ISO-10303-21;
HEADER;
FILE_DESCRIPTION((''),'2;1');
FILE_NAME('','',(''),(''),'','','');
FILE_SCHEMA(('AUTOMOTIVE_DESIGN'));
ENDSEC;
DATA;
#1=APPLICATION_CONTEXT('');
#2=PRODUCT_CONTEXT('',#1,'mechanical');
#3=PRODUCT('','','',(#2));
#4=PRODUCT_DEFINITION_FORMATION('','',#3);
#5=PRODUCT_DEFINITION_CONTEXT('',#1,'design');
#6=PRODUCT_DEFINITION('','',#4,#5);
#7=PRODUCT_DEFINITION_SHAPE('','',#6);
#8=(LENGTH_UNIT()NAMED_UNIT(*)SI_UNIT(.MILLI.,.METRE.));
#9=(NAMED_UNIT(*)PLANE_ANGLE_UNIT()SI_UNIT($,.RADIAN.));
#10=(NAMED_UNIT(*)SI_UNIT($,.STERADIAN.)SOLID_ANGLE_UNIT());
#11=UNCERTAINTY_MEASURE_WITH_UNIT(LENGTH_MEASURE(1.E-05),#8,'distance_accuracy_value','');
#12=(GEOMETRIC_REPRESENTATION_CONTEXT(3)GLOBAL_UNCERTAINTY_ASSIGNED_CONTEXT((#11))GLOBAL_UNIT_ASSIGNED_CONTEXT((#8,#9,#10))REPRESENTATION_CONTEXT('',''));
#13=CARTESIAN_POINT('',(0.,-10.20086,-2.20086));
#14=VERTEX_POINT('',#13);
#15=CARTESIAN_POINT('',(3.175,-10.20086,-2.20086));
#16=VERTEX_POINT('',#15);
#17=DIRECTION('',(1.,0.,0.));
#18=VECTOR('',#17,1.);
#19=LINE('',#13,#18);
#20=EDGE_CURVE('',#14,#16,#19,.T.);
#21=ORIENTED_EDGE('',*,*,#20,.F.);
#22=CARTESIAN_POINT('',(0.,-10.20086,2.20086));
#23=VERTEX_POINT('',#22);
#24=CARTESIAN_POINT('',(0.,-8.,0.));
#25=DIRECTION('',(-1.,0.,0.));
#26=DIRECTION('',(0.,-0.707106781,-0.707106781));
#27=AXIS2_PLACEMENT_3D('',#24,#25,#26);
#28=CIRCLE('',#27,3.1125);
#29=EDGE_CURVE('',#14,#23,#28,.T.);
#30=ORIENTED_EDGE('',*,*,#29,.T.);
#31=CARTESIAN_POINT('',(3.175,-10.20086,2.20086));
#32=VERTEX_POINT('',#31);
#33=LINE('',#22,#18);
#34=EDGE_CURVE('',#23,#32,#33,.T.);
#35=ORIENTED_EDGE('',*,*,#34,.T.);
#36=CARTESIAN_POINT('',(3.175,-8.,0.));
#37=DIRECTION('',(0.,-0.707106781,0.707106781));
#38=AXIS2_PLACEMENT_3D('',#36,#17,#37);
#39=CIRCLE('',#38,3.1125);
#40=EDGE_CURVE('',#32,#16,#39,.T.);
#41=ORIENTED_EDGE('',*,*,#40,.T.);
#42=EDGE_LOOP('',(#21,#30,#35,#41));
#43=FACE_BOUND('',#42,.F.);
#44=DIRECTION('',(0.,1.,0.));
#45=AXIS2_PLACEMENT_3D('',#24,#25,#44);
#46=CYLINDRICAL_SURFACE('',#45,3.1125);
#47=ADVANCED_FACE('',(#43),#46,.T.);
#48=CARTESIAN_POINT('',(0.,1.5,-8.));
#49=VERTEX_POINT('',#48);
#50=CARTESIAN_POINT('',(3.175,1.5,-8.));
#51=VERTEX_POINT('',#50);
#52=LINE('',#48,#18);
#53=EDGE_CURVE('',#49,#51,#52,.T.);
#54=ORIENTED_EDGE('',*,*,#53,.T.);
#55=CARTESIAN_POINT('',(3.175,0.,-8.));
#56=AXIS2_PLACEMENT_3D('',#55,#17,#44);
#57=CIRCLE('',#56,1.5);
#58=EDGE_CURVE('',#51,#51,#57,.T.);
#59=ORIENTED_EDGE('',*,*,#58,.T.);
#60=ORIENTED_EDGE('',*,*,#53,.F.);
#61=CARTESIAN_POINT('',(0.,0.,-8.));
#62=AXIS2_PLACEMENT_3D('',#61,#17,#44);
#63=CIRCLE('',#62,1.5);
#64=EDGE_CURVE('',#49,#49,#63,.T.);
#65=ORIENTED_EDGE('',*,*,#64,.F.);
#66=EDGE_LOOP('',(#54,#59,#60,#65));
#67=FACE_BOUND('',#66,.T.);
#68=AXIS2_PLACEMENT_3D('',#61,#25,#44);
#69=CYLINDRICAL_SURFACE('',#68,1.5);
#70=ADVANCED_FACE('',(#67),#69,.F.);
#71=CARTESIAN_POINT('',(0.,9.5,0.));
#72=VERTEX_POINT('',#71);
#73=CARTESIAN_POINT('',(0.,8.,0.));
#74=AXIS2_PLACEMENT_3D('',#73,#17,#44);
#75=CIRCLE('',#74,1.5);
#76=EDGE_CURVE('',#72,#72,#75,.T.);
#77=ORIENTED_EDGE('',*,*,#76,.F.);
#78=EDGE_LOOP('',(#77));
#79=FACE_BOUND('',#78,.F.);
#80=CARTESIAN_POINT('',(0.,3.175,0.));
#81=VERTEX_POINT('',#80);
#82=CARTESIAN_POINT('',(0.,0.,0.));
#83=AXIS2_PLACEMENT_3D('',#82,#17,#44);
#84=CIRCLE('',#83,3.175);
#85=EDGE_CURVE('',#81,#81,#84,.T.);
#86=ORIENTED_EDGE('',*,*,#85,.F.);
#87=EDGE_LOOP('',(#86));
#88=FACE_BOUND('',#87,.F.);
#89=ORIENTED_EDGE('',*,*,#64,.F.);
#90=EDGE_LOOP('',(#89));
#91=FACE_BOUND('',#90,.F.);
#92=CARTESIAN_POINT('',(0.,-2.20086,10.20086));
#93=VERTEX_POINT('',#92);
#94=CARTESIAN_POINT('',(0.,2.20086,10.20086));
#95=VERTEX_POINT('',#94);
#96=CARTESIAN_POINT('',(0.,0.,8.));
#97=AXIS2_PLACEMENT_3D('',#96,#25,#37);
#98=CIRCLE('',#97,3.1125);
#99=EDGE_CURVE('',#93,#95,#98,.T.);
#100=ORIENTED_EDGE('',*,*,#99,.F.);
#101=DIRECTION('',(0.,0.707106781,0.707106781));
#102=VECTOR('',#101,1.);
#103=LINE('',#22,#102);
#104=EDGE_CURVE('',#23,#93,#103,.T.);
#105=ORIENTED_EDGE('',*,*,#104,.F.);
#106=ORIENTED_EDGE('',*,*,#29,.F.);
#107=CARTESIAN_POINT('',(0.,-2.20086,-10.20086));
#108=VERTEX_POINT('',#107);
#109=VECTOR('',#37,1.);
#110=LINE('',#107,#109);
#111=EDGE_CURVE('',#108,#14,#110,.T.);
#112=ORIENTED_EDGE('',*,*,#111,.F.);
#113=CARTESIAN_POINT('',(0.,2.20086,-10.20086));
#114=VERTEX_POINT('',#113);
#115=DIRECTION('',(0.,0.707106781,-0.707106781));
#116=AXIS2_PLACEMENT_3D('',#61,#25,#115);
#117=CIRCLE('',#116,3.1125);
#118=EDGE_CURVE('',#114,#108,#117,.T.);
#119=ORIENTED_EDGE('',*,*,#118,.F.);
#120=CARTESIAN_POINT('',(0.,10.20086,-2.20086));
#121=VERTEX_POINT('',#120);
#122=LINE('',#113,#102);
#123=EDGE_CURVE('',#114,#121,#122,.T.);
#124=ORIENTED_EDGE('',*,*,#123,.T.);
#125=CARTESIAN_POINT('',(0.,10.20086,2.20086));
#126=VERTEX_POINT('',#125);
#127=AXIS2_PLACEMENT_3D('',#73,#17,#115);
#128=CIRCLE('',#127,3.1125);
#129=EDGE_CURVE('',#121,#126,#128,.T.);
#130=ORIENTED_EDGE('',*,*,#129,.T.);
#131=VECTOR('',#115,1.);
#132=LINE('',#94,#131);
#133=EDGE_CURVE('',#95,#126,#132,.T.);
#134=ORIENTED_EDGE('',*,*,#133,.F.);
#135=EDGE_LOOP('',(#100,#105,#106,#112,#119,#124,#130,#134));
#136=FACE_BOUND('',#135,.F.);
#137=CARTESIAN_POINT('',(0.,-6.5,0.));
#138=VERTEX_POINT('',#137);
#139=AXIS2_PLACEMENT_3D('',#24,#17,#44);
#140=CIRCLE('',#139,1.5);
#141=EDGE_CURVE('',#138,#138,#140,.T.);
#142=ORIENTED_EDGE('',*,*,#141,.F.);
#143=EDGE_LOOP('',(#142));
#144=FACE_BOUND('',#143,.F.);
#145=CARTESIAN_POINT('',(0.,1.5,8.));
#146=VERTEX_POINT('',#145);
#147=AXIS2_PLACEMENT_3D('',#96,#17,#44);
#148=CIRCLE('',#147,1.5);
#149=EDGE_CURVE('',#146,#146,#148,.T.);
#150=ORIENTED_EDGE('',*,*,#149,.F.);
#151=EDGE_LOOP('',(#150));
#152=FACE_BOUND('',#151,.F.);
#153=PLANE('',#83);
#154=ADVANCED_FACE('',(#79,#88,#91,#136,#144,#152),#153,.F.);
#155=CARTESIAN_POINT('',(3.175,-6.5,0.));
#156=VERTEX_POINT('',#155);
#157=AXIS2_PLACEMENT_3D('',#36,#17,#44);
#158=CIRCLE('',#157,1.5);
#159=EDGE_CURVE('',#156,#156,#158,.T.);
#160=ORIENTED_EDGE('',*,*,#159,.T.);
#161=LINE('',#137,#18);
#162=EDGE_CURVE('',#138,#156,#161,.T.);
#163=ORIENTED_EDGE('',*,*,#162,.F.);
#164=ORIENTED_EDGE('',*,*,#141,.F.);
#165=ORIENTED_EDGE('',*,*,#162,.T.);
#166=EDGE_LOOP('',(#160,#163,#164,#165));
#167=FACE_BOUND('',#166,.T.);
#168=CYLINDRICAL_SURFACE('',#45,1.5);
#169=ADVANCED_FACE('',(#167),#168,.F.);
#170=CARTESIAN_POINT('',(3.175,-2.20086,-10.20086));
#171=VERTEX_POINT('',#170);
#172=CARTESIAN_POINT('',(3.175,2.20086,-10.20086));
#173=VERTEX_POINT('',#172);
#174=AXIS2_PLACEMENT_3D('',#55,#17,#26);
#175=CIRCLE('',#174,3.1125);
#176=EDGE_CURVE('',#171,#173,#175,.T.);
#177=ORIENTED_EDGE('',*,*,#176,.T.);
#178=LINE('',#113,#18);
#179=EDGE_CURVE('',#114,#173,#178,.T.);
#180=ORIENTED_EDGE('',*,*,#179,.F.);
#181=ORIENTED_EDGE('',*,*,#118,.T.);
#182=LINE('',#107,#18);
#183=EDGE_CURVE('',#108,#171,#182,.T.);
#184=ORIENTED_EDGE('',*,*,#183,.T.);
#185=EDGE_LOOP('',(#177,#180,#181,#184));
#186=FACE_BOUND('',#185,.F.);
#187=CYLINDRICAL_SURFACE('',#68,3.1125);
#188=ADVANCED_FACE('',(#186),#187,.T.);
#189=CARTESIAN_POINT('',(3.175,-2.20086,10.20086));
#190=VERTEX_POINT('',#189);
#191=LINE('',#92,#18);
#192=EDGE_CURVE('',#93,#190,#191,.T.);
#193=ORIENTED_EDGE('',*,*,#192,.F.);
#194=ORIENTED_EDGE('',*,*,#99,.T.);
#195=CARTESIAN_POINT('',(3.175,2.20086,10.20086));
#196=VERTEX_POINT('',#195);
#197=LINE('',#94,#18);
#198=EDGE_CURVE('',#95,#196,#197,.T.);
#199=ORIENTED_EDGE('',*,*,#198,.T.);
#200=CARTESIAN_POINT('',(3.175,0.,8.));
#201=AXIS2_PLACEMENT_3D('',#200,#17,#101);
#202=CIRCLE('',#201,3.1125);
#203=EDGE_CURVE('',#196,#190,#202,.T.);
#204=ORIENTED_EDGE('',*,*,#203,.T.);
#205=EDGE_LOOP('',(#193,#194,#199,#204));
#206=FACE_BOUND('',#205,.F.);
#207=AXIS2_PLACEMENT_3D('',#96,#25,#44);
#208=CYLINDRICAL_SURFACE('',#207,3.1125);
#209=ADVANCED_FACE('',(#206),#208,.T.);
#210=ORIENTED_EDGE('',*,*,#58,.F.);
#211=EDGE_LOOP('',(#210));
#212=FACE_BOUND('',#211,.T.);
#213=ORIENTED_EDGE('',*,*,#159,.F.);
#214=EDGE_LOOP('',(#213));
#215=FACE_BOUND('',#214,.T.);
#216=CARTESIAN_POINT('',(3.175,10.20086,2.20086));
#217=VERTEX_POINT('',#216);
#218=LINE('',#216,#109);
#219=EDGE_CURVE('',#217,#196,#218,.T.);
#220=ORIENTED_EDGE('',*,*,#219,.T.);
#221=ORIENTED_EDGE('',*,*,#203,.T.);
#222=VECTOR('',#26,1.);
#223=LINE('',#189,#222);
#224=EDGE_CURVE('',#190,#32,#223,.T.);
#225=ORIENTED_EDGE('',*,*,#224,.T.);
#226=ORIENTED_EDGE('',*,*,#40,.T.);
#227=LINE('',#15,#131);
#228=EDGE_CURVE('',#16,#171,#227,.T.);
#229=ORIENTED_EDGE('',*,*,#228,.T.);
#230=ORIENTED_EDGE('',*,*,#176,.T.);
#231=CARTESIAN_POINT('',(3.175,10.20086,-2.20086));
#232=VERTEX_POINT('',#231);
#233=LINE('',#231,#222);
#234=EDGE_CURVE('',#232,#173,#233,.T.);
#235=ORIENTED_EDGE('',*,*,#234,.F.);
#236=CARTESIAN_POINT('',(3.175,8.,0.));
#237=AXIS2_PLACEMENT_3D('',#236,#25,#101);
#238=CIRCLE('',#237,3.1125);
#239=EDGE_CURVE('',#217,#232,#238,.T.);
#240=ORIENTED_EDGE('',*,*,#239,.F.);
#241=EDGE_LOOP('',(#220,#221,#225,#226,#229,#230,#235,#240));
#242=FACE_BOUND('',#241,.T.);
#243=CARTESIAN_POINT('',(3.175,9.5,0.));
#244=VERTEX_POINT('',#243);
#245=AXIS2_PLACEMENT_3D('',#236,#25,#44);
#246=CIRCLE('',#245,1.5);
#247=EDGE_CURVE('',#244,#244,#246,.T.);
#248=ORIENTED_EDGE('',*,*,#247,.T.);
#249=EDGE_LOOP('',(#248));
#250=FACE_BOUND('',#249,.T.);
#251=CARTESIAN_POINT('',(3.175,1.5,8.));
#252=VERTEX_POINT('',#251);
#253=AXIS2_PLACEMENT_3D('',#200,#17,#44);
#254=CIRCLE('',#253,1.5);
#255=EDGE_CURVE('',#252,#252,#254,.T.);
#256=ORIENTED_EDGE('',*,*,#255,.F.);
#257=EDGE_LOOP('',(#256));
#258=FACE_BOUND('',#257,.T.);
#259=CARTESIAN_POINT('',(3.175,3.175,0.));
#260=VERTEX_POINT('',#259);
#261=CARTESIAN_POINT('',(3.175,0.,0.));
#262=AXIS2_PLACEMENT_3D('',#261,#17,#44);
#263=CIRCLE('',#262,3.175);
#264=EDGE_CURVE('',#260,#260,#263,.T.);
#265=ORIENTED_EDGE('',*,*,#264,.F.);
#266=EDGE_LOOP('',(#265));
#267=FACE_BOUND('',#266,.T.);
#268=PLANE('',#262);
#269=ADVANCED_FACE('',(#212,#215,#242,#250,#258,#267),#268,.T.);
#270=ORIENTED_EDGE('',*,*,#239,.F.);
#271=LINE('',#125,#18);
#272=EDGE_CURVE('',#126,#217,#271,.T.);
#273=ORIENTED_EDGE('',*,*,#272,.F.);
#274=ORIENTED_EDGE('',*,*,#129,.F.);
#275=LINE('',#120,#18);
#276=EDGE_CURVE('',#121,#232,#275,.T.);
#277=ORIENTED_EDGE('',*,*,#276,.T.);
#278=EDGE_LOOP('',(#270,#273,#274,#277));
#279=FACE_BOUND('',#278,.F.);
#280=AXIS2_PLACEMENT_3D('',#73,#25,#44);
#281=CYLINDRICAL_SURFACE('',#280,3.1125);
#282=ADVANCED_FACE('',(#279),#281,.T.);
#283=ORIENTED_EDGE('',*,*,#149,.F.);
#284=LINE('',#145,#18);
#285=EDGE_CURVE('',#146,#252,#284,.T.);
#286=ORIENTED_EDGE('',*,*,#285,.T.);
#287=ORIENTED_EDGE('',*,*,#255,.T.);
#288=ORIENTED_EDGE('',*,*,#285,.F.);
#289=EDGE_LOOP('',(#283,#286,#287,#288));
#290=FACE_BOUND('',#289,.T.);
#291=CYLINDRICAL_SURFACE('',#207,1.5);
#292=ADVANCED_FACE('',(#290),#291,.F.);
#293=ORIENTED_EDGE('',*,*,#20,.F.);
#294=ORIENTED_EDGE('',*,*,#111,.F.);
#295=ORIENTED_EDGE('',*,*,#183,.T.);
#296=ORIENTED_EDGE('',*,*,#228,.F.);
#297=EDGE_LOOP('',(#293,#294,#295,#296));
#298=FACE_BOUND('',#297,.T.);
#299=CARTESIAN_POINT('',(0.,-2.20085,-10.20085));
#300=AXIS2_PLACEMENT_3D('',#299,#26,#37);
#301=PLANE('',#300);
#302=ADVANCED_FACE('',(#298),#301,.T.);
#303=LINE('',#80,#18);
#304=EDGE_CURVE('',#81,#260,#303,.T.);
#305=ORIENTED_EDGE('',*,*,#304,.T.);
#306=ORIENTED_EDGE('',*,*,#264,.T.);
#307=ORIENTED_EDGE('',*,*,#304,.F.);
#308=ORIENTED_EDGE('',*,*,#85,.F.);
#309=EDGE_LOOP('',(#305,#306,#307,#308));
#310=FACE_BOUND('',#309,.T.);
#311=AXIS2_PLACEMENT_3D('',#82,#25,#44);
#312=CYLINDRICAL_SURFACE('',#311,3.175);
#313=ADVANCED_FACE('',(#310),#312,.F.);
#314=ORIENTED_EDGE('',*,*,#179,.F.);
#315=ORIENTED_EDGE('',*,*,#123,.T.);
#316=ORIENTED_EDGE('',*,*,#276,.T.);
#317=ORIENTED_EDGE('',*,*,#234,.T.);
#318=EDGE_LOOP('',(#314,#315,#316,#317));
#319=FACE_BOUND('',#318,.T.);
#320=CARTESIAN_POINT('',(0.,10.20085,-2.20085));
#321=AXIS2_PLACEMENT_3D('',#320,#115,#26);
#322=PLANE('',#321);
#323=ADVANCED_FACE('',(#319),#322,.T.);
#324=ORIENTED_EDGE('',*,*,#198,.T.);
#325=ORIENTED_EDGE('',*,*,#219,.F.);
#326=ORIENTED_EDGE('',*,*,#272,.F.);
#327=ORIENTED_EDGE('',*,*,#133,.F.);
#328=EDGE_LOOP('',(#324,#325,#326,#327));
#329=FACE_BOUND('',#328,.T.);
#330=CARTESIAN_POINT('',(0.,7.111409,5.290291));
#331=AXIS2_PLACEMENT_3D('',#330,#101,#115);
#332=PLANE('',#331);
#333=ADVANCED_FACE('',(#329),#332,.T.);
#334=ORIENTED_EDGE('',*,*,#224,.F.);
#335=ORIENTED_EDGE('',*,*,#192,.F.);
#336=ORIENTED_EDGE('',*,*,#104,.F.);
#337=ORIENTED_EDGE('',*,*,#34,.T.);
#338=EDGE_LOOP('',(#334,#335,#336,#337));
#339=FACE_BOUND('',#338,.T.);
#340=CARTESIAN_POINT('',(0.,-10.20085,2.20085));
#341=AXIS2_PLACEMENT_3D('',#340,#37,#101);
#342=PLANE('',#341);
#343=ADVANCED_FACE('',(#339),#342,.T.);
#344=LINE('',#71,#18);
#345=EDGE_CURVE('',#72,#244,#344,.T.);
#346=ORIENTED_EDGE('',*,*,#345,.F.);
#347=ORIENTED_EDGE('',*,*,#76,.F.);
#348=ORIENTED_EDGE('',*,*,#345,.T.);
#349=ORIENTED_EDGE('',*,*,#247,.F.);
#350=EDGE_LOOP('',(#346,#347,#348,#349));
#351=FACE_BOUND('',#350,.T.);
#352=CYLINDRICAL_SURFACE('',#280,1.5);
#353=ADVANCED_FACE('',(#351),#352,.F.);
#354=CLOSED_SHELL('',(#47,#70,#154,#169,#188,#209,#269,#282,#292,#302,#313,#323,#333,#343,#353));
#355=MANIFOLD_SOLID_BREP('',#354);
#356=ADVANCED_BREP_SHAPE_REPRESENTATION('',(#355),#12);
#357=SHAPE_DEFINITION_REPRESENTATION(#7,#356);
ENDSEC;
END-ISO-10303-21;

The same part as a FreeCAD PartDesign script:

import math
import FreeCAD as App
import Part
import Sketcher
from FreeCAD import Vector
Q = App.Units.Quantity

doc = App.newDocument("Part")
body = doc.addObject("PartDesign::Body", "Body")

# Sketch on YZ plane
sketch1 = body.newObject("Sketcher::SketchObject", "Sketch")
sketch1.AttachmentSupport = (doc.getObject("YZ_Plane"), [""])
sketch1.MapMode = "FlatFace"
sketch1.addGeometry(Part.ArcOfCircle(Part.Circle(Vector(8, 0, 0), Vector(0, 0, 1), 3.1125), math.radians(-45), math.radians(45)), False)
sketch1.addGeometry(Part.LineSegment(Vector(10.20086, 2.20086, 0), Vector(2.20086, 10.20086, 0)), False)
sketch1.addGeometry(Part.ArcOfCircle(Part.Circle(Vector(0, 8, 0), Vector(0, 0, 1), 3.1125), math.radians(45), math.radians(135)), False)
sketch1.addGeometry(Part.LineSegment(Vector(-2.20086, 10.20086, 0), Vector(-10.20086, 2.20086, 0)), False)
sketch1.addGeometry(Part.ArcOfCircle(Part.Circle(Vector(-8, 0, 0), Vector(0, 0, 1), 3.1125), math.radians(135), math.radians(225)), False)
sketch1.addGeometry(Part.LineSegment(Vector(-10.20086, -2.20086, 0), Vector(-2.20086, -10.20086, 0)), False)
sketch1.addGeometry(Part.ArcOfCircle(Part.Circle(Vector(0, -8, 0), Vector(0, 0, 1), 3.1125), math.radians(-135), math.radians(-45)), False)
sketch1.addGeometry(Part.LineSegment(Vector(2.20086, -10.20086, 0), Vector(10.20086, -2.20086, 0)), False)
sketch1.addGeometry(Part.Circle(Vector(8, 0, 0), Vector(0, 0, 1), 1.5), False)
sketch1.addGeometry(Part.Circle(Vector(0, 0, 0), Vector(0, 0, 1), 3.175), False)
sketch1.addGeometry(Part.Circle(Vector(0, -8, 0), Vector(0, 0, 1), 1.5), False)
sketch1.addGeometry(Part.Circle(Vector(-8, 0, 0), Vector(0, 0, 1), 1.5), False)
sketch1.addGeometry(Part.Circle(Vector(0, 8, 0), Vector(0, 0, 1), 1.5), False)
sketch1.addConstraint(Sketcher.Constraint("Tangent", 0, 2, 1, 1))
sketch1.addConstraint(Sketcher.Constraint("Tangent", 1, 2, 2, 1))
sketch1.addConstraint(Sketcher.Constraint("Tangent", 2, 2, 3, 1))
sketch1.addConstraint(Sketcher.Constraint("Tangent", 3, 2, 4, 1))
sketch1.addConstraint(Sketcher.Constraint("Tangent", 4, 2, 5, 1))
sketch1.addConstraint(Sketcher.Constraint("Tangent", 5, 2, 6, 1))
sketch1.addConstraint(Sketcher.Constraint("Tangent", 6, 2, 7, 1))
sketch1.addConstraint(Sketcher.Constraint("Tangent", 7, 2, 0, 1))
sketch1.addConstraint(Sketcher.Constraint("Coincident", 9, 3, -1, 1))
sketch1.addConstraint(Sketcher.Constraint("Coincident", 8, 3, 0, 3))
sketch1.addConstraint(Sketcher.Constraint("Coincident", 10, 3, 6, 3))
sketch1.addConstraint(Sketcher.Constraint("Coincident", 11, 3, 4, 3))
sketch1.addConstraint(Sketcher.Constraint("Coincident", 12, 3, 2, 3))
sketch1.addConstraint(Sketcher.Constraint("Equal", 0, 2))
sketch1.addConstraint(Sketcher.Constraint("Equal", 2, 4))
sketch1.addConstraint(Sketcher.Constraint("Equal", 4, 6))
sketch1.addConstraint(Sketcher.Constraint("Equal", 8, 10))
sketch1.addConstraint(Sketcher.Constraint("Equal", 10, 11))
sketch1.addConstraint(Sketcher.Constraint("Equal", 11, 12))
sketch1.addConstraint(Sketcher.Constraint("Symmetric", 0, 3, 4, 3, -1, 1))
sketch1.addConstraint(Sketcher.Constraint("Symmetric", 2, 3, 6, 3, -1, 1))
sketch1.addConstraint(Sketcher.Constraint("Symmetric", 1, 2, 2, 2, -2))
sketch1.addConstraint(Sketcher.Constraint("Perpendicular", 1, 3))
sketch1.addConstraint(Sketcher.Constraint("Diameter", 9, Q("0.25 in")))
sketch1.addConstraint(Sketcher.Constraint("Diameter", 8, Q("0.1181 in")))
sketch1.addConstraint(Sketcher.Constraint("Radius", 0, Q("3.1125 mm")))
sketch1.addConstraint(Sketcher.Constraint("DistanceX", 4, 3, 0, 3, Q("16 mm")))
pad1 = body.newObject("PartDesign::Pad", "Pad")
pad1.Profile = sketch1
pad1.Length = Q("0.125 in")

doc.recompute()
